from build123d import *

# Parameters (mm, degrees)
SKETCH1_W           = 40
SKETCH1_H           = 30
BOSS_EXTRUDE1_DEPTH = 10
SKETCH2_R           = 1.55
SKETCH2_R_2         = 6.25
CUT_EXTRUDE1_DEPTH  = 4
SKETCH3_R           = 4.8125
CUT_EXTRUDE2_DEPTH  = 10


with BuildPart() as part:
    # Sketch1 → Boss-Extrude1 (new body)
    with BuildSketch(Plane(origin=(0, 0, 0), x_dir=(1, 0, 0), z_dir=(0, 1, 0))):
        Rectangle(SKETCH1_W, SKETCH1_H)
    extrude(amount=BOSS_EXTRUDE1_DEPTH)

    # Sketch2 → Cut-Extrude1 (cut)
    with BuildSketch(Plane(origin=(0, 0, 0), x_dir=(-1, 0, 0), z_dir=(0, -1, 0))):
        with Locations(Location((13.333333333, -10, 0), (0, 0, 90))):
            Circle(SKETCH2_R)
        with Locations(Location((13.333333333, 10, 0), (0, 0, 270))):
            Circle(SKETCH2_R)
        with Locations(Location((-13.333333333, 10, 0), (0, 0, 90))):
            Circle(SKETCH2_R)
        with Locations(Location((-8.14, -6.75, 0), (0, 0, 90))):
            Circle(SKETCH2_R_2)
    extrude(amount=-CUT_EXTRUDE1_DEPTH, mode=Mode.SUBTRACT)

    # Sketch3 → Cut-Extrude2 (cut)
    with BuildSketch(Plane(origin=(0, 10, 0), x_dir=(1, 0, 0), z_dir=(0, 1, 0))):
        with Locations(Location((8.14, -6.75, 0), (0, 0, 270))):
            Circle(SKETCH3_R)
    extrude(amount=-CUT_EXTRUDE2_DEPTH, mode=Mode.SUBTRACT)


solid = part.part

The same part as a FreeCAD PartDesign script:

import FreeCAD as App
import Part
import Sketcher

V = App.Vector
Q = App.Units.Quantity


def add_polygon(sketch, points):
    """Adds a closed chain of lines whose ends are joined by coincident constraints."""
    first, n = sketch.GeometryCount, len(points)
    for a, b in zip(points, points[1:] + points[:1]):
        sketch.addGeometry(Part.LineSegment(App.Vector(*a, 0), App.Vector(*b, 0)), False)
    for i in range(n):
        sketch.addConstraint(Sketcher.Constraint("Coincident", first + i, 2, first + (i + 1) % n, 1))

doc = App.newDocument("Part")
params = doc.addObject("Spreadsheet::Sheet", "Params")
for row, (alias, value) in enumerate([
    ("sketch1_width", "40 mm"),
    ("sketch1_height", "30 mm"),
    ("pad1_length", "10 mm"),
    ("sketch2_diameter", "3.1 mm"),
    ("sketch2_diameter2", "12.5 mm"),
    ("pocket1_length", "4 mm"),
    ("pocket2_length", "10 mm"),
], start=1):
    params.set(f"A{row}", alias)
    params.set(f"B{row}", "=" + value)
    params.setAlias(f"B{row}", alias)

body = doc.addObject("PartDesign::Body", "Body")

sketch1 = body.newObject("Sketcher::SketchObject", "Sketch")
sketch1.AttachmentSupport = (doc.getObject("XZ_Plane"), [""])
sketch1.MapMode = "FlatFace"
add_polygon(sketch1, [(-20, -15), (-20, 15), (20, 15), (20, -15)])
sketch1.addConstraint([
    Sketcher.Constraint("Vertical", 0),
    Sketcher.Constraint("Horizontal", 1),
    Sketcher.Constraint("Vertical", 2),
    Sketcher.Constraint("Horizontal", 3),
    Sketcher.Constraint("Symmetric", 0, 2, 2, 2, -1, 1),
    Sketcher.Constraint("DistanceX", 1, 1, 1, 2, Q("40 mm")),
    Sketcher.Constraint("DistanceY", 0, 1, 0, 2, Q("30 mm")),
])
sketch1.setExpression("Constraints[9]", "Params.sketch1_width")
sketch1.setExpression("Constraints[10]", "Params.sketch1_height")
pad1 = body.newObject("PartDesign::Pad", "Pad")
pad1.Profile = sketch1
pad1.setExpression("Length", "Params.pad1_length")
pad1.Reversed = True

sketch2 = body.newObject("Sketcher::SketchObject", "Sketch001")
sketch2.AttachmentSupport = (doc.getObject("XZ_Plane"), [""])
sketch2.MapMode = "FlatFace"
sketch2.addGeometry([
    Part.Circle(V(-13.333333, 10, 0), V(0, 0, 1), 1.55),
    Part.Circle(V(-13.333333, -10, 0), V(0, 0, 1), 1.55),
    Part.Circle(V(13.333333, -10, 0), V(0, 0, 1), 1.55),
    Part.Circle(V(8.14, 6.75, 0), V(0, 0, 1), 6.25),
], False)
sketch2.addConstraint([
    Sketcher.Constraint("Equal", 0, 1),
    Sketcher.Constraint("Equal", 1, 2),
    Sketcher.Constraint("Symmetric", 0, 3, 2, 3, -1, 1),
    Sketcher.Constraint("Symmetric", 1, 3, 2, 3, -2),
    Sketcher.Constraint("Diameter", 0, Q("3.1 mm")),
    Sketcher.Constraint("Diameter", 3, Q("12.5 mm")),
    Sketcher.Constraint("DistanceY", -1, 1, 0, 3, Q("10 mm")),
    Sketcher.Constraint("DistanceX", -1, 1, 3, 3, Q("8.14 mm")),
    Sketcher.Constraint("DistanceY", -1, 1, 3, 3, Q("6.75 mm")),
    Sketcher.Constraint("DistanceX", 0, 3, -1, 1, Q("13.333333 mm")),
])
sketch2.setExpression("Constraints[4]", "Params.sketch2_diameter")
sketch2.setExpression("Constraints[5]", "Params.sketch2_diameter2")
pocket1 = body.newObject("PartDesign::Pocket", "Pocket")
pocket1.Profile = sketch2
pocket1.setExpression("Length", "Params.pocket1_length")

sketch3 = body.newObject("Sketcher::SketchObject", "Sketch002")
sketch3.AttachmentSupport = (doc.getObject("XZ_Plane"), [""])
sketch3.MapMode = "FlatFace"
sketch3.AttachmentOffset = App.Placement(V(0, 0, -10), App.Rotation())
sketch3.addGeometry(Part.Circle(V(8.14, 6.75, 0), V(0, 0, 1), 4.8125), False)
sketch3.addConstraint([
    Sketcher.Constraint("Diameter", 0, Q("9.625 mm")),
    Sketcher.Constraint("DistanceX", -1, 1, 0, 3, Q("8.14 mm")),
    Sketcher.Constraint("DistanceY", -1, 1, 0, 3, Q("6.75 mm")),
])
pocket2 = body.newObject("PartDesign::Pocket", "Pocket001")
pocket2.Profile = sketch3
pocket2.setExpression("Length", "Params.pocket2_length")
pocket2.Reversed = True

doc.recompute()
